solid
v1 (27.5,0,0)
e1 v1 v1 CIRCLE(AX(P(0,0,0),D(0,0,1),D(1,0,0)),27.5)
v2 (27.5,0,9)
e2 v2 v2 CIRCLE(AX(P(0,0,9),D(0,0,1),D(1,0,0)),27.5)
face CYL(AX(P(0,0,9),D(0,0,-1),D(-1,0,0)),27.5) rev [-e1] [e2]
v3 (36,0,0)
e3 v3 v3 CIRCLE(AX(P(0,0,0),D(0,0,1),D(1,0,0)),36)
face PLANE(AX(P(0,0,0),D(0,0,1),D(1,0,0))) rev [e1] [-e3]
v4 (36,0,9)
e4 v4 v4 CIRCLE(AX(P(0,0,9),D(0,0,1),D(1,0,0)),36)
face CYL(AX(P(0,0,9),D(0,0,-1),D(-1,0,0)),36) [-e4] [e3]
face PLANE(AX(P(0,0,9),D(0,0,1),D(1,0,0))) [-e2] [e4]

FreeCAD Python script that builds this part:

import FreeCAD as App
import Part
import Sketcher
from FreeCAD import Vector
Q = App.Units.Quantity

doc = App.newDocument("Part")
params = doc.addObject("Spreadsheet::Sheet", "Params")
for row, (alias, value) in enumerate([
    ("sketch1_diameter", "72 mm"),
    ("sketch1_diameter2", "55 mm"),
    ("pad1_length", "9 mm"),
], start=1):
    params.set(f"A{row}", alias)
    params.set(f"B{row}", "=" + value)
    params.setAlias(f"B{row}", alias)

body = doc.addObject("PartDesign::Body", "Body")

sketch1 = body.newObject("Sketcher::SketchObject", "Sketch")
sketch1.AttachmentSupport = (doc.getObject("XY_Plane"), [""])
sketch1.MapMode = "FlatFace"
sketch1.addGeometry([
    Part.Circle(Vector(0, 0, 0), Vector(0, 0, 1), 36),
    Part.Circle(Vector(0, 0, 0), Vector(0, 0, 1), 27.5),
], False)
sketch1.addConstraint([
    Sketcher.Constraint("Coincident", 0, 3, -1, 1),
    Sketcher.Constraint("Coincident", 1, 3, -1, 1),
    Sketcher.Constraint("Diameter", 0, Q("72 mm")),
    Sketcher.Constraint("Diameter", 1, Q("55 mm")),
])
sketch1.setExpression("Constraints[2]", "Params.sketch1_diameter")
sketch1.setExpression("Constraints[3]", "Params.sketch1_diameter2")
pad1 = body.newObject("PartDesign::Pad", "Pad")
pad1.Profile = sketch1
pad1.setExpression("Length", "Params.pad1_length")

doc.recompute()
